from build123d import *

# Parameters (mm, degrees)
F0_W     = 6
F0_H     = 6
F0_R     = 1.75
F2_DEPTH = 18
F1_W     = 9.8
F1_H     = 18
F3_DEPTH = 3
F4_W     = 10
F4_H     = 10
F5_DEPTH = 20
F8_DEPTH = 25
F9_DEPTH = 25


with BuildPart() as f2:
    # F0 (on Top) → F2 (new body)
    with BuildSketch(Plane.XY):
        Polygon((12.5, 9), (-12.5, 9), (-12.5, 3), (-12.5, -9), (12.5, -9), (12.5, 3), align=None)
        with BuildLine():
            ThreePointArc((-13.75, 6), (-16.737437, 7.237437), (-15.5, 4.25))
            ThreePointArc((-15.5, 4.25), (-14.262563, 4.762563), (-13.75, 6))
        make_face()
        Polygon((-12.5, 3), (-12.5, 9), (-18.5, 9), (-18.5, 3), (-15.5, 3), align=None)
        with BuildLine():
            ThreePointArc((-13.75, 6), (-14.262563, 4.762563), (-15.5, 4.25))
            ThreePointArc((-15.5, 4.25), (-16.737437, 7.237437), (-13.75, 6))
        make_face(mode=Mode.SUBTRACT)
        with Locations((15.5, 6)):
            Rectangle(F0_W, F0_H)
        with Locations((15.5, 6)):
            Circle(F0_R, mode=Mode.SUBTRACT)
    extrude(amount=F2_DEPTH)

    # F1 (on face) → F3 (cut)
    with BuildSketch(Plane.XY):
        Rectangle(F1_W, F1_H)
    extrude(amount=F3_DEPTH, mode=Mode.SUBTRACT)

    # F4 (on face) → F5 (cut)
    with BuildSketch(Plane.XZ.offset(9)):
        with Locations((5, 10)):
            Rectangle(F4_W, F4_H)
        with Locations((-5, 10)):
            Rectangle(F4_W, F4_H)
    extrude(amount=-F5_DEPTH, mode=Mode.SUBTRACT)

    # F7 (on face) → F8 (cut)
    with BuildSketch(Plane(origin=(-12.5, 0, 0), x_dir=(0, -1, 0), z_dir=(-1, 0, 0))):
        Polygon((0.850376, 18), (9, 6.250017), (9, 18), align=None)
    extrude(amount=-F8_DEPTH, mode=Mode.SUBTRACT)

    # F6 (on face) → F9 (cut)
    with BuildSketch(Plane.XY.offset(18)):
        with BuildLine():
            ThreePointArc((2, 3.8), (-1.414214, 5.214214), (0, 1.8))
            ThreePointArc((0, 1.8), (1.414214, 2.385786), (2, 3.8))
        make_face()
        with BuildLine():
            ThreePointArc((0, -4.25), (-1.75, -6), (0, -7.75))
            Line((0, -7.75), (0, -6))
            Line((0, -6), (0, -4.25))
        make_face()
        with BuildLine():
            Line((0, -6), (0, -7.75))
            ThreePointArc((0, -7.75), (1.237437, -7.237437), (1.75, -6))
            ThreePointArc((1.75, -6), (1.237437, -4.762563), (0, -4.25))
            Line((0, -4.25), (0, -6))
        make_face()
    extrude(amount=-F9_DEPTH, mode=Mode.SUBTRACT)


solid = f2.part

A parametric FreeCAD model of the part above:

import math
import FreeCAD as App
import Part
import Sketcher
Q = App.Units.Quantity


def add_polygon(sketch, points):
    """Adds a closed chain of lines whose ends are joined by coincident constraints."""
    first, n = sketch.GeometryCount, len(points)
    for a, b in zip(points, points[1:] + points[:1]):
        sketch.addGeometry(Part.LineSegment(App.Vector(*a, 0), App.Vector(*b, 0)), False)
    for i in range(n):
        sketch.addConstraint(Sketcher.Constraint("Coincident", first + i, 2, first + (i + 1) % n, 1))

doc = App.newDocument("Part")
body = doc.addObject("PartDesign::Body", "Body")

sketch1 = body.newObject("Sketcher::SketchObject", "Sketch")
sketch1.AttachmentSupport = (doc.getObject("XY_Plane"), [""])
sketch1.MapMode = "FlatFace"
add_polygon(sketch1, [(-18.5, 9), (-18.5, 3), (-12.5, 3), (-12.5, -9), (12.5, -9), (12.5, 3), (18.5, 3), (18.5, 9)])
sketch1.addGeometry(Part.Circle(App.Vector(15.5, 6, 0), App.Vector(0, 0, 1), 1.8), False)
sketch1.addGeometry(Part.ArcOfCircle(Part.Circle(App.Vector(-15.5, 6, 0), App.Vector(0, 0, 1), 1.8), math.radians(0), math.radians(270)), False)
sketch1.addGeometry(Part.ArcOfCircle(Part.Circle(App.Vector(-15.5, 6, 0), App.Vector(0, 0, 1), 1.7), math.radians(-90), math.radians(0)), False)
sketch1.addConstraint(Sketcher.Constraint("Tangent", 9, 1, 10, 2))
sketch1.addConstraint(Sketcher.Constraint("Coincident", 10, 1, 9, 2))
sketch1.addConstraint(Sketcher.Constraint("Vertical", 0))
sketch1.addConstraint(Sketcher.Constraint("Horizontal", 1))
sketch1.addConstraint(Sketcher.Constraint("Vertical", 2))
sketch1.addConstraint(Sketcher.Constraint("Horizontal", 3))
sketch1.addConstraint(Sketcher.Constraint("Vertical", 4))
sketch1.addConstraint(Sketcher.Constraint("Horizontal", 5))
sketch1.addConstraint(Sketcher.Constraint("Vertical", 6))
sketch1.addConstraint(Sketcher.Constraint("Horizontal", 7))
sketch1.addConstraint(Sketcher.Constraint("Equal", 8, 9))
sketch1.addConstraint(Sketcher.Constraint("Symmetric", 8, 3, 9, 3, -2))
sketch1.addConstraint(Sketcher.Constraint("Symmetric", 1, 2, 4, 2, -2))
sketch1.addConstraint(Sketcher.Constraint("Horizontal", 10, 3, 9, 1))
sketch1.addConstraint(Sketcher.Constraint("Vertical", 9, 3, 10, 1))
sketch1.addConstraint(Sketcher.Constraint("Equal", 1, 5))
sketch1.addConstraint(Sketcher.Constraint("Equal", 5, 0))
sketch1.addConstraint(Sketcher.Constraint("Diameter", 8, Q("3.5 mm")))
sketch1.addConstraint(Sketcher.Constraint("DistanceX", 1, 1, 1, 2, Q("6 mm")))
sketch1.addConstraint(Sketcher.Constraint("DistanceX", 3, 1, 3, 2, Q("25 mm")))
sketch1.addConstraint(Sketcher.Constraint("DistanceY", 2, 2, 2, 1, Q("12 mm")))
sketch1.addConstraint(Sketcher.Constraint("DistanceY", -1, 1, 8, 3, Q("6 mm")))
sketch1.addConstraint(Sketcher.Constraint("DistanceY", -1, 1, 0, 2, Q("3 mm")))
sketch1.addConstraint(Sketcher.Constraint("DistanceX", 9, 3, 8, 3, Q("31 mm")))
pad1 = body.newObject("PartDesign::Pad", "Pad")
pad1.Profile = sketch1
pad1.Length = 18

sketch2 = body.newObject("Sketcher::SketchObject", "Sketch001")
sketch2.AttachmentSupport = (doc.getObject("XY_Plane"), [""])
sketch2.MapMode = "FlatFace"
add_polygon(sketch2, [(-5, 9), (-5, -9), (5, -9), (5, 9)])
sketch2.addConstraint(Sketcher.Constraint("Vertical", 0))
sketch2.addConstraint(Sketcher.Constraint("Horizontal", 1))
sketch2.addConstraint(Sketcher.Constraint("Vertical", 2))
sketch2.addConstraint(Sketcher.Constraint("Horizontal", 3))
sketch2.addConstraint(Sketcher.Constraint("Symmetric", 0, 2, 2, 2, -1, 1))
sketch2.addConstraint(Sketcher.Constraint("DistanceY", 0, 2, 0, 1, Q("18 mm")))
sketch2.addConstraint(Sketcher.Constraint("DistanceX", 1, 1, 1, 2, Q("9.8 mm")))
pocket1 = body.newObject("PartDesign::Pocket", "Pocket")
pocket1.Profile = sketch2
pocket1.Length = 3
pocket1.Reversed = True

sketch3 = body.newObject("Sketcher::SketchObject", "Sketch002")
sketch3.AttachmentSupport = (doc.getObject("XZ_Plane"), [""])
sketch3.MapMode = "FlatFace"
sketch3.AttachmentOffset = App.Placement(App.Vector(0, 0, 9), App.Rotation())
add_polygon(sketch3, [(10, 5), (10, 15), (-10, 15), (-10, 5)])
sketch3.addConstraint(Sketcher.Constraint("Vertical", 0))
sketch3.addConstraint(Sketcher.Constraint("Horizontal", 1))
sketch3.addConstraint(Sketcher.Constraint("Vertical", 2))
sketch3.addConstraint(Sketcher.Constraint("Horizontal", 3))
sketch3.addConstraint(Sketcher.Constraint("DistanceX", 1, 2, 1, 1, Q("20 mm")))
sketch3.addConstraint(Sketcher.Constraint("DistanceY", 0, 1, 0, 2, Q("10 mm")))
sketch3.addConstraint(Sketcher.Constraint("DistanceX", -1, 1, 0, 2, Q("10 mm")))
sketch3.addConstraint(Sketcher.Constraint("DistanceY", -1, 1, 0, 2, Q("15 mm")))
pocket2 = body.newObject("PartDesign::Pocket", "Pocket001")
pocket2.Profile = sketch3
pocket2.Length = 20

sketch4 = body.newObject("Sketcher::SketchObject", "Sketch003")
sketch4.AttachmentSupport = (doc.getObject("YZ_Plane"), [""])
sketch4.MapMode = "FlatFace"
sketch4.AttachmentOffset = App.Placement(App.Vector(0, 0, -12.5), App.Rotation())
add_polygon(sketch4, [(-1, 18), (-9, 6), (-9, 18)])
sketch4.addConstraint(Sketcher.Constraint("Vertical", 1))
sketch4.addConstraint(Sketcher.Constraint("Horizontal", 2))
sketch4.addConstraint(Sketcher.Constraint("DistanceX", 0, 2, -1, 1, Q("9 mm")))
sketch4.addConstraint(Sketcher.Constraint("DistanceY", -1, 1, 1, 2, Q("18 mm")))
sketch4.addConstraint(Sketcher.Constraint("DistanceX", 2, 1, 2, 2, Q("8.149624 mm")))
sketch4.addConstraint(Sketcher.Constraint("DistanceY", 1, 1, 1, 2, Q("11.749983 mm")))
pocket3 = body.newObject("PartDesign::Pocket", "Pocket002")
pocket3.Profile = sketch4
pocket3.Length = 25
pocket3.Reversed = True

sketch5 = body.newObject("Sketcher::SketchObject", "Sketch004")
sketch5.AttachmentSupport = (doc.getObject("XY_Plane"), [""])
sketch5.MapMode = "FlatFace"
sketch5.AttachmentOffset = App.Placement(App.Vector(0, 0, 18), App.Rotation())
sketch5.addGeometry(Part.ArcOfCircle(Part.Circle(App.Vector(0, 3.8, 0), App.Vector(0, 0, 1), 2), math.radians(0), math.radians(270)), False)
sketch5.addGeometry(Part.ArcOfCircle(Part.Circle(App.Vector(0, 3.8, 0), App.Vector(0, 0, 1), 2), math.radians(-90), math.radians(0)), False)
sketch5.addGeometry(Part.ArcOfCircle(Part.Circle(App.Vector(0, -6, 0), App.Vector(0, 0, 1), 1.8), math.radians(90), math.radians(270)), False)
sketch5.addGeometry(Part.ArcOfCircle(Part.Circle(App.Vector(0, -6, 0), App.Vector(0, 0, 1), 1.7), math.radians(-90), math.radians(0)), False)
sketch5.addGeometry(Part.ArcOfCircle(Part.Circle(App.Vector(0, -6, 0), App.Vector(0, 0, 1), 1.7), math.radians(0), math.radians(90)), False)
sketch5.addConstraint(Sketcher.Constraint("Tangent", 0, 1, 1, 2))
sketch5.addConstraint(Sketcher.Constraint("Coincident", 1, 1, 0, 2))
sketch5.addConstraint(Sketcher.Constraint("Tangent", 2, 2, 3, 1))
sketch5.addConstraint(Sketcher.Constraint("Tangent", 3, 2, 4, 1))
sketch5.addConstraint(Sketcher.Constraint("Tangent", 4, 2, 2, 1))
sketch5.addConstraint(Sketcher.Constraint("PointOnObject", 0, 3, -2))
sketch5.addConstraint(Sketcher.Constraint("PointOnObject", 2, 3, -2))
sketch5.addConstraint(Sketcher.Constraint("PointOnObject", 1, 1, -2))
sketch5.addConstraint(Sketcher.Constraint("PointOnObject", 2, 2, -2))
sketch5.addConstraint(Sketcher.Constraint("PointOnObject", 4, 2, -2))
sketch5.addConstraint(Sketcher.Constraint("Horizontal", 1, 3, 0, 1))
sketch5.addConstraint(Sketcher.Constraint("Horizontal", 4, 3, 3, 2))
sketch5.addConstraint(Sketcher.Constraint("Radius", 0, Q("2 mm")))
sketch5.addConstraint(Sketcher.Constraint("Radius", 2, Q("1.75 mm")))
sketch5.addConstraint(Sketcher.Constraint("DistanceY", 2, 3, -1, 1, Q("6 mm")))
sketch5.addConstraint(Sketcher.Constraint("DistanceY", -1, 1, 0, 3, Q("3.8 mm")))
pocket4 = body.newObject("PartDesign::Pocket", "Pocket003")
pocket4.Profile = sketch5
pocket4.Length = 25

doc.recompute()
